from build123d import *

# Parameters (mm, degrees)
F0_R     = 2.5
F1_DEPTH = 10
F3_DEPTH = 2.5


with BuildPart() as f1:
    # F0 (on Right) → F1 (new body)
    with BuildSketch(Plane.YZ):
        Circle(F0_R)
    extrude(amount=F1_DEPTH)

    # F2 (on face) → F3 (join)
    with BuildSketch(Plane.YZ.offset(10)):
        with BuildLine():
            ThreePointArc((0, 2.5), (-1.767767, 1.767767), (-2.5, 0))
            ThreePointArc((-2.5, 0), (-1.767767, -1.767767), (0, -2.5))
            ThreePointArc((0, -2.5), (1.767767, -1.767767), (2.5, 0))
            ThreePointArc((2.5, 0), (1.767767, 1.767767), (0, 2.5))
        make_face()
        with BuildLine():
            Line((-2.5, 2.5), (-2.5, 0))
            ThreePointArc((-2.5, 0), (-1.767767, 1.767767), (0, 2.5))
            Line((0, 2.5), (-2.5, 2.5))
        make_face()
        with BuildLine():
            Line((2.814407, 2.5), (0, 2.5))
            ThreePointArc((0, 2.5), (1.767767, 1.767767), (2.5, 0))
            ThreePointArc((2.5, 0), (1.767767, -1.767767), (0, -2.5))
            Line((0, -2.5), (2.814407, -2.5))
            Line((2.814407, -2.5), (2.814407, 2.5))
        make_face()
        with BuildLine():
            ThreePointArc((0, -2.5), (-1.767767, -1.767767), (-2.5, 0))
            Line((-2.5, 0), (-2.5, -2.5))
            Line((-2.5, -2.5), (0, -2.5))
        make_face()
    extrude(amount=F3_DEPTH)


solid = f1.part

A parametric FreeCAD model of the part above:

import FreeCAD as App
import Part
import Sketcher

V = App.Vector
Q = App.Units.Quantity

doc = App.newDocument("Part")
params = doc.addObject("Spreadsheet::Sheet", "Params")
for row, (alias, value) in enumerate([
    ("sketch1_diameter", "5 mm"),
    ("pad1_length", "10 mm"),
    ("sketch2_height", "5 mm"),
    ("pad2_length", "2.5 mm"),
], start=1):
    params.set(f"A{row}", alias)
    params.set(f"B{row}", "=" + value)
    params.setAlias(f"B{row}", alias)

body = doc.addObject("PartDesign::Body", "Body")

# Sketch on YZ plane
sketch1 = doc.addObject("Sketcher::SketchObject", "Sketch")
body.addObject(sketch1)
sketch1.AttachmentSupport = (doc.YZ_Plane, [""])
sketch1.MapMode = "FlatFace"
sketch1.addGeometry(Part.Circle(V(0, 0, 0), V(0, 0, 1), 2.5), False)
sketch1.addConstraint([
    Sketcher.Constraint("Coincident", 0, 3, -1, 1),
    Sketcher.Constraint("Diameter", 0, Q("5 mm")),
])
sketch1.setExpression("Constraints[1]", "Params.sketch1_diameter")
pad1 = doc.addObject("PartDesign::Pad", "Pad")
body.addObject(pad1)
pad1.Profile = sketch1
pad1.setExpression("Length", "Params.pad1_length")

# Sketch on YZ plane
sketch2 = doc.addObject("Sketcher::SketchObject", "Sketch001")
body.addObject(sketch2)
sketch2.AttachmentSupport = (doc.YZ_Plane, [""])
sketch2.MapMode = "FlatFace"
sketch2.AttachmentOffset = App.Placement(V(0, 0, 10), App.Rotation())
sketch2.addGeometry([
    Part.LineSegment(V(3, -2, 0), V(3, 2, 0)),
    Part.LineSegment(V(3, 2, 0), V(-2, 2, 0)),
    Part.LineSegment(V(-2, 2, 0), V(-2, -2, 0)),
    Part.LineSegment(V(-2, -2, 0), V(3, -2, 0)),
], False)
sketch2.addConstraint([
    Sketcher.Constraint("Coincident", 0, 2, 1, 1),
    Sketcher.Constraint("Coincident", 1, 2, 2, 1),
    Sketcher.Constraint("Coincident", 2, 2, 3, 1),
    Sketcher.Constraint("Coincident", 3, 2, 0, 1),
    Sketcher.Constraint("Vertical", 0),
    Sketcher.Constraint("Horizontal", 1),
    Sketcher.Constraint("Vertical", 2),
    Sketcher.Constraint("Horizontal", 3),
    Sketcher.Constraint("DistanceY", 0, 1, 0, 2, Q("5 mm")),
    Sketcher.Constraint("DistanceY", -1, 1, 0, 2, Q("2.5 mm")),
    Sketcher.Constraint("DistanceX", 1, 2, -1, 1, Q("2.5 mm")),
    Sketcher.Constraint("DistanceX", 1, 2, 1, 1, Q("5.314407 mm")),
])
sketch2.setExpression("Constraints[8]", "Params.sketch2_height")
pad2 = doc.addObject("PartDesign::Pad", "Pad001")
body.addObject(pad2)
pad2.Profile = sketch2
pad2.setExpression("Length", "Params.pad2_length")

doc.recompute()
